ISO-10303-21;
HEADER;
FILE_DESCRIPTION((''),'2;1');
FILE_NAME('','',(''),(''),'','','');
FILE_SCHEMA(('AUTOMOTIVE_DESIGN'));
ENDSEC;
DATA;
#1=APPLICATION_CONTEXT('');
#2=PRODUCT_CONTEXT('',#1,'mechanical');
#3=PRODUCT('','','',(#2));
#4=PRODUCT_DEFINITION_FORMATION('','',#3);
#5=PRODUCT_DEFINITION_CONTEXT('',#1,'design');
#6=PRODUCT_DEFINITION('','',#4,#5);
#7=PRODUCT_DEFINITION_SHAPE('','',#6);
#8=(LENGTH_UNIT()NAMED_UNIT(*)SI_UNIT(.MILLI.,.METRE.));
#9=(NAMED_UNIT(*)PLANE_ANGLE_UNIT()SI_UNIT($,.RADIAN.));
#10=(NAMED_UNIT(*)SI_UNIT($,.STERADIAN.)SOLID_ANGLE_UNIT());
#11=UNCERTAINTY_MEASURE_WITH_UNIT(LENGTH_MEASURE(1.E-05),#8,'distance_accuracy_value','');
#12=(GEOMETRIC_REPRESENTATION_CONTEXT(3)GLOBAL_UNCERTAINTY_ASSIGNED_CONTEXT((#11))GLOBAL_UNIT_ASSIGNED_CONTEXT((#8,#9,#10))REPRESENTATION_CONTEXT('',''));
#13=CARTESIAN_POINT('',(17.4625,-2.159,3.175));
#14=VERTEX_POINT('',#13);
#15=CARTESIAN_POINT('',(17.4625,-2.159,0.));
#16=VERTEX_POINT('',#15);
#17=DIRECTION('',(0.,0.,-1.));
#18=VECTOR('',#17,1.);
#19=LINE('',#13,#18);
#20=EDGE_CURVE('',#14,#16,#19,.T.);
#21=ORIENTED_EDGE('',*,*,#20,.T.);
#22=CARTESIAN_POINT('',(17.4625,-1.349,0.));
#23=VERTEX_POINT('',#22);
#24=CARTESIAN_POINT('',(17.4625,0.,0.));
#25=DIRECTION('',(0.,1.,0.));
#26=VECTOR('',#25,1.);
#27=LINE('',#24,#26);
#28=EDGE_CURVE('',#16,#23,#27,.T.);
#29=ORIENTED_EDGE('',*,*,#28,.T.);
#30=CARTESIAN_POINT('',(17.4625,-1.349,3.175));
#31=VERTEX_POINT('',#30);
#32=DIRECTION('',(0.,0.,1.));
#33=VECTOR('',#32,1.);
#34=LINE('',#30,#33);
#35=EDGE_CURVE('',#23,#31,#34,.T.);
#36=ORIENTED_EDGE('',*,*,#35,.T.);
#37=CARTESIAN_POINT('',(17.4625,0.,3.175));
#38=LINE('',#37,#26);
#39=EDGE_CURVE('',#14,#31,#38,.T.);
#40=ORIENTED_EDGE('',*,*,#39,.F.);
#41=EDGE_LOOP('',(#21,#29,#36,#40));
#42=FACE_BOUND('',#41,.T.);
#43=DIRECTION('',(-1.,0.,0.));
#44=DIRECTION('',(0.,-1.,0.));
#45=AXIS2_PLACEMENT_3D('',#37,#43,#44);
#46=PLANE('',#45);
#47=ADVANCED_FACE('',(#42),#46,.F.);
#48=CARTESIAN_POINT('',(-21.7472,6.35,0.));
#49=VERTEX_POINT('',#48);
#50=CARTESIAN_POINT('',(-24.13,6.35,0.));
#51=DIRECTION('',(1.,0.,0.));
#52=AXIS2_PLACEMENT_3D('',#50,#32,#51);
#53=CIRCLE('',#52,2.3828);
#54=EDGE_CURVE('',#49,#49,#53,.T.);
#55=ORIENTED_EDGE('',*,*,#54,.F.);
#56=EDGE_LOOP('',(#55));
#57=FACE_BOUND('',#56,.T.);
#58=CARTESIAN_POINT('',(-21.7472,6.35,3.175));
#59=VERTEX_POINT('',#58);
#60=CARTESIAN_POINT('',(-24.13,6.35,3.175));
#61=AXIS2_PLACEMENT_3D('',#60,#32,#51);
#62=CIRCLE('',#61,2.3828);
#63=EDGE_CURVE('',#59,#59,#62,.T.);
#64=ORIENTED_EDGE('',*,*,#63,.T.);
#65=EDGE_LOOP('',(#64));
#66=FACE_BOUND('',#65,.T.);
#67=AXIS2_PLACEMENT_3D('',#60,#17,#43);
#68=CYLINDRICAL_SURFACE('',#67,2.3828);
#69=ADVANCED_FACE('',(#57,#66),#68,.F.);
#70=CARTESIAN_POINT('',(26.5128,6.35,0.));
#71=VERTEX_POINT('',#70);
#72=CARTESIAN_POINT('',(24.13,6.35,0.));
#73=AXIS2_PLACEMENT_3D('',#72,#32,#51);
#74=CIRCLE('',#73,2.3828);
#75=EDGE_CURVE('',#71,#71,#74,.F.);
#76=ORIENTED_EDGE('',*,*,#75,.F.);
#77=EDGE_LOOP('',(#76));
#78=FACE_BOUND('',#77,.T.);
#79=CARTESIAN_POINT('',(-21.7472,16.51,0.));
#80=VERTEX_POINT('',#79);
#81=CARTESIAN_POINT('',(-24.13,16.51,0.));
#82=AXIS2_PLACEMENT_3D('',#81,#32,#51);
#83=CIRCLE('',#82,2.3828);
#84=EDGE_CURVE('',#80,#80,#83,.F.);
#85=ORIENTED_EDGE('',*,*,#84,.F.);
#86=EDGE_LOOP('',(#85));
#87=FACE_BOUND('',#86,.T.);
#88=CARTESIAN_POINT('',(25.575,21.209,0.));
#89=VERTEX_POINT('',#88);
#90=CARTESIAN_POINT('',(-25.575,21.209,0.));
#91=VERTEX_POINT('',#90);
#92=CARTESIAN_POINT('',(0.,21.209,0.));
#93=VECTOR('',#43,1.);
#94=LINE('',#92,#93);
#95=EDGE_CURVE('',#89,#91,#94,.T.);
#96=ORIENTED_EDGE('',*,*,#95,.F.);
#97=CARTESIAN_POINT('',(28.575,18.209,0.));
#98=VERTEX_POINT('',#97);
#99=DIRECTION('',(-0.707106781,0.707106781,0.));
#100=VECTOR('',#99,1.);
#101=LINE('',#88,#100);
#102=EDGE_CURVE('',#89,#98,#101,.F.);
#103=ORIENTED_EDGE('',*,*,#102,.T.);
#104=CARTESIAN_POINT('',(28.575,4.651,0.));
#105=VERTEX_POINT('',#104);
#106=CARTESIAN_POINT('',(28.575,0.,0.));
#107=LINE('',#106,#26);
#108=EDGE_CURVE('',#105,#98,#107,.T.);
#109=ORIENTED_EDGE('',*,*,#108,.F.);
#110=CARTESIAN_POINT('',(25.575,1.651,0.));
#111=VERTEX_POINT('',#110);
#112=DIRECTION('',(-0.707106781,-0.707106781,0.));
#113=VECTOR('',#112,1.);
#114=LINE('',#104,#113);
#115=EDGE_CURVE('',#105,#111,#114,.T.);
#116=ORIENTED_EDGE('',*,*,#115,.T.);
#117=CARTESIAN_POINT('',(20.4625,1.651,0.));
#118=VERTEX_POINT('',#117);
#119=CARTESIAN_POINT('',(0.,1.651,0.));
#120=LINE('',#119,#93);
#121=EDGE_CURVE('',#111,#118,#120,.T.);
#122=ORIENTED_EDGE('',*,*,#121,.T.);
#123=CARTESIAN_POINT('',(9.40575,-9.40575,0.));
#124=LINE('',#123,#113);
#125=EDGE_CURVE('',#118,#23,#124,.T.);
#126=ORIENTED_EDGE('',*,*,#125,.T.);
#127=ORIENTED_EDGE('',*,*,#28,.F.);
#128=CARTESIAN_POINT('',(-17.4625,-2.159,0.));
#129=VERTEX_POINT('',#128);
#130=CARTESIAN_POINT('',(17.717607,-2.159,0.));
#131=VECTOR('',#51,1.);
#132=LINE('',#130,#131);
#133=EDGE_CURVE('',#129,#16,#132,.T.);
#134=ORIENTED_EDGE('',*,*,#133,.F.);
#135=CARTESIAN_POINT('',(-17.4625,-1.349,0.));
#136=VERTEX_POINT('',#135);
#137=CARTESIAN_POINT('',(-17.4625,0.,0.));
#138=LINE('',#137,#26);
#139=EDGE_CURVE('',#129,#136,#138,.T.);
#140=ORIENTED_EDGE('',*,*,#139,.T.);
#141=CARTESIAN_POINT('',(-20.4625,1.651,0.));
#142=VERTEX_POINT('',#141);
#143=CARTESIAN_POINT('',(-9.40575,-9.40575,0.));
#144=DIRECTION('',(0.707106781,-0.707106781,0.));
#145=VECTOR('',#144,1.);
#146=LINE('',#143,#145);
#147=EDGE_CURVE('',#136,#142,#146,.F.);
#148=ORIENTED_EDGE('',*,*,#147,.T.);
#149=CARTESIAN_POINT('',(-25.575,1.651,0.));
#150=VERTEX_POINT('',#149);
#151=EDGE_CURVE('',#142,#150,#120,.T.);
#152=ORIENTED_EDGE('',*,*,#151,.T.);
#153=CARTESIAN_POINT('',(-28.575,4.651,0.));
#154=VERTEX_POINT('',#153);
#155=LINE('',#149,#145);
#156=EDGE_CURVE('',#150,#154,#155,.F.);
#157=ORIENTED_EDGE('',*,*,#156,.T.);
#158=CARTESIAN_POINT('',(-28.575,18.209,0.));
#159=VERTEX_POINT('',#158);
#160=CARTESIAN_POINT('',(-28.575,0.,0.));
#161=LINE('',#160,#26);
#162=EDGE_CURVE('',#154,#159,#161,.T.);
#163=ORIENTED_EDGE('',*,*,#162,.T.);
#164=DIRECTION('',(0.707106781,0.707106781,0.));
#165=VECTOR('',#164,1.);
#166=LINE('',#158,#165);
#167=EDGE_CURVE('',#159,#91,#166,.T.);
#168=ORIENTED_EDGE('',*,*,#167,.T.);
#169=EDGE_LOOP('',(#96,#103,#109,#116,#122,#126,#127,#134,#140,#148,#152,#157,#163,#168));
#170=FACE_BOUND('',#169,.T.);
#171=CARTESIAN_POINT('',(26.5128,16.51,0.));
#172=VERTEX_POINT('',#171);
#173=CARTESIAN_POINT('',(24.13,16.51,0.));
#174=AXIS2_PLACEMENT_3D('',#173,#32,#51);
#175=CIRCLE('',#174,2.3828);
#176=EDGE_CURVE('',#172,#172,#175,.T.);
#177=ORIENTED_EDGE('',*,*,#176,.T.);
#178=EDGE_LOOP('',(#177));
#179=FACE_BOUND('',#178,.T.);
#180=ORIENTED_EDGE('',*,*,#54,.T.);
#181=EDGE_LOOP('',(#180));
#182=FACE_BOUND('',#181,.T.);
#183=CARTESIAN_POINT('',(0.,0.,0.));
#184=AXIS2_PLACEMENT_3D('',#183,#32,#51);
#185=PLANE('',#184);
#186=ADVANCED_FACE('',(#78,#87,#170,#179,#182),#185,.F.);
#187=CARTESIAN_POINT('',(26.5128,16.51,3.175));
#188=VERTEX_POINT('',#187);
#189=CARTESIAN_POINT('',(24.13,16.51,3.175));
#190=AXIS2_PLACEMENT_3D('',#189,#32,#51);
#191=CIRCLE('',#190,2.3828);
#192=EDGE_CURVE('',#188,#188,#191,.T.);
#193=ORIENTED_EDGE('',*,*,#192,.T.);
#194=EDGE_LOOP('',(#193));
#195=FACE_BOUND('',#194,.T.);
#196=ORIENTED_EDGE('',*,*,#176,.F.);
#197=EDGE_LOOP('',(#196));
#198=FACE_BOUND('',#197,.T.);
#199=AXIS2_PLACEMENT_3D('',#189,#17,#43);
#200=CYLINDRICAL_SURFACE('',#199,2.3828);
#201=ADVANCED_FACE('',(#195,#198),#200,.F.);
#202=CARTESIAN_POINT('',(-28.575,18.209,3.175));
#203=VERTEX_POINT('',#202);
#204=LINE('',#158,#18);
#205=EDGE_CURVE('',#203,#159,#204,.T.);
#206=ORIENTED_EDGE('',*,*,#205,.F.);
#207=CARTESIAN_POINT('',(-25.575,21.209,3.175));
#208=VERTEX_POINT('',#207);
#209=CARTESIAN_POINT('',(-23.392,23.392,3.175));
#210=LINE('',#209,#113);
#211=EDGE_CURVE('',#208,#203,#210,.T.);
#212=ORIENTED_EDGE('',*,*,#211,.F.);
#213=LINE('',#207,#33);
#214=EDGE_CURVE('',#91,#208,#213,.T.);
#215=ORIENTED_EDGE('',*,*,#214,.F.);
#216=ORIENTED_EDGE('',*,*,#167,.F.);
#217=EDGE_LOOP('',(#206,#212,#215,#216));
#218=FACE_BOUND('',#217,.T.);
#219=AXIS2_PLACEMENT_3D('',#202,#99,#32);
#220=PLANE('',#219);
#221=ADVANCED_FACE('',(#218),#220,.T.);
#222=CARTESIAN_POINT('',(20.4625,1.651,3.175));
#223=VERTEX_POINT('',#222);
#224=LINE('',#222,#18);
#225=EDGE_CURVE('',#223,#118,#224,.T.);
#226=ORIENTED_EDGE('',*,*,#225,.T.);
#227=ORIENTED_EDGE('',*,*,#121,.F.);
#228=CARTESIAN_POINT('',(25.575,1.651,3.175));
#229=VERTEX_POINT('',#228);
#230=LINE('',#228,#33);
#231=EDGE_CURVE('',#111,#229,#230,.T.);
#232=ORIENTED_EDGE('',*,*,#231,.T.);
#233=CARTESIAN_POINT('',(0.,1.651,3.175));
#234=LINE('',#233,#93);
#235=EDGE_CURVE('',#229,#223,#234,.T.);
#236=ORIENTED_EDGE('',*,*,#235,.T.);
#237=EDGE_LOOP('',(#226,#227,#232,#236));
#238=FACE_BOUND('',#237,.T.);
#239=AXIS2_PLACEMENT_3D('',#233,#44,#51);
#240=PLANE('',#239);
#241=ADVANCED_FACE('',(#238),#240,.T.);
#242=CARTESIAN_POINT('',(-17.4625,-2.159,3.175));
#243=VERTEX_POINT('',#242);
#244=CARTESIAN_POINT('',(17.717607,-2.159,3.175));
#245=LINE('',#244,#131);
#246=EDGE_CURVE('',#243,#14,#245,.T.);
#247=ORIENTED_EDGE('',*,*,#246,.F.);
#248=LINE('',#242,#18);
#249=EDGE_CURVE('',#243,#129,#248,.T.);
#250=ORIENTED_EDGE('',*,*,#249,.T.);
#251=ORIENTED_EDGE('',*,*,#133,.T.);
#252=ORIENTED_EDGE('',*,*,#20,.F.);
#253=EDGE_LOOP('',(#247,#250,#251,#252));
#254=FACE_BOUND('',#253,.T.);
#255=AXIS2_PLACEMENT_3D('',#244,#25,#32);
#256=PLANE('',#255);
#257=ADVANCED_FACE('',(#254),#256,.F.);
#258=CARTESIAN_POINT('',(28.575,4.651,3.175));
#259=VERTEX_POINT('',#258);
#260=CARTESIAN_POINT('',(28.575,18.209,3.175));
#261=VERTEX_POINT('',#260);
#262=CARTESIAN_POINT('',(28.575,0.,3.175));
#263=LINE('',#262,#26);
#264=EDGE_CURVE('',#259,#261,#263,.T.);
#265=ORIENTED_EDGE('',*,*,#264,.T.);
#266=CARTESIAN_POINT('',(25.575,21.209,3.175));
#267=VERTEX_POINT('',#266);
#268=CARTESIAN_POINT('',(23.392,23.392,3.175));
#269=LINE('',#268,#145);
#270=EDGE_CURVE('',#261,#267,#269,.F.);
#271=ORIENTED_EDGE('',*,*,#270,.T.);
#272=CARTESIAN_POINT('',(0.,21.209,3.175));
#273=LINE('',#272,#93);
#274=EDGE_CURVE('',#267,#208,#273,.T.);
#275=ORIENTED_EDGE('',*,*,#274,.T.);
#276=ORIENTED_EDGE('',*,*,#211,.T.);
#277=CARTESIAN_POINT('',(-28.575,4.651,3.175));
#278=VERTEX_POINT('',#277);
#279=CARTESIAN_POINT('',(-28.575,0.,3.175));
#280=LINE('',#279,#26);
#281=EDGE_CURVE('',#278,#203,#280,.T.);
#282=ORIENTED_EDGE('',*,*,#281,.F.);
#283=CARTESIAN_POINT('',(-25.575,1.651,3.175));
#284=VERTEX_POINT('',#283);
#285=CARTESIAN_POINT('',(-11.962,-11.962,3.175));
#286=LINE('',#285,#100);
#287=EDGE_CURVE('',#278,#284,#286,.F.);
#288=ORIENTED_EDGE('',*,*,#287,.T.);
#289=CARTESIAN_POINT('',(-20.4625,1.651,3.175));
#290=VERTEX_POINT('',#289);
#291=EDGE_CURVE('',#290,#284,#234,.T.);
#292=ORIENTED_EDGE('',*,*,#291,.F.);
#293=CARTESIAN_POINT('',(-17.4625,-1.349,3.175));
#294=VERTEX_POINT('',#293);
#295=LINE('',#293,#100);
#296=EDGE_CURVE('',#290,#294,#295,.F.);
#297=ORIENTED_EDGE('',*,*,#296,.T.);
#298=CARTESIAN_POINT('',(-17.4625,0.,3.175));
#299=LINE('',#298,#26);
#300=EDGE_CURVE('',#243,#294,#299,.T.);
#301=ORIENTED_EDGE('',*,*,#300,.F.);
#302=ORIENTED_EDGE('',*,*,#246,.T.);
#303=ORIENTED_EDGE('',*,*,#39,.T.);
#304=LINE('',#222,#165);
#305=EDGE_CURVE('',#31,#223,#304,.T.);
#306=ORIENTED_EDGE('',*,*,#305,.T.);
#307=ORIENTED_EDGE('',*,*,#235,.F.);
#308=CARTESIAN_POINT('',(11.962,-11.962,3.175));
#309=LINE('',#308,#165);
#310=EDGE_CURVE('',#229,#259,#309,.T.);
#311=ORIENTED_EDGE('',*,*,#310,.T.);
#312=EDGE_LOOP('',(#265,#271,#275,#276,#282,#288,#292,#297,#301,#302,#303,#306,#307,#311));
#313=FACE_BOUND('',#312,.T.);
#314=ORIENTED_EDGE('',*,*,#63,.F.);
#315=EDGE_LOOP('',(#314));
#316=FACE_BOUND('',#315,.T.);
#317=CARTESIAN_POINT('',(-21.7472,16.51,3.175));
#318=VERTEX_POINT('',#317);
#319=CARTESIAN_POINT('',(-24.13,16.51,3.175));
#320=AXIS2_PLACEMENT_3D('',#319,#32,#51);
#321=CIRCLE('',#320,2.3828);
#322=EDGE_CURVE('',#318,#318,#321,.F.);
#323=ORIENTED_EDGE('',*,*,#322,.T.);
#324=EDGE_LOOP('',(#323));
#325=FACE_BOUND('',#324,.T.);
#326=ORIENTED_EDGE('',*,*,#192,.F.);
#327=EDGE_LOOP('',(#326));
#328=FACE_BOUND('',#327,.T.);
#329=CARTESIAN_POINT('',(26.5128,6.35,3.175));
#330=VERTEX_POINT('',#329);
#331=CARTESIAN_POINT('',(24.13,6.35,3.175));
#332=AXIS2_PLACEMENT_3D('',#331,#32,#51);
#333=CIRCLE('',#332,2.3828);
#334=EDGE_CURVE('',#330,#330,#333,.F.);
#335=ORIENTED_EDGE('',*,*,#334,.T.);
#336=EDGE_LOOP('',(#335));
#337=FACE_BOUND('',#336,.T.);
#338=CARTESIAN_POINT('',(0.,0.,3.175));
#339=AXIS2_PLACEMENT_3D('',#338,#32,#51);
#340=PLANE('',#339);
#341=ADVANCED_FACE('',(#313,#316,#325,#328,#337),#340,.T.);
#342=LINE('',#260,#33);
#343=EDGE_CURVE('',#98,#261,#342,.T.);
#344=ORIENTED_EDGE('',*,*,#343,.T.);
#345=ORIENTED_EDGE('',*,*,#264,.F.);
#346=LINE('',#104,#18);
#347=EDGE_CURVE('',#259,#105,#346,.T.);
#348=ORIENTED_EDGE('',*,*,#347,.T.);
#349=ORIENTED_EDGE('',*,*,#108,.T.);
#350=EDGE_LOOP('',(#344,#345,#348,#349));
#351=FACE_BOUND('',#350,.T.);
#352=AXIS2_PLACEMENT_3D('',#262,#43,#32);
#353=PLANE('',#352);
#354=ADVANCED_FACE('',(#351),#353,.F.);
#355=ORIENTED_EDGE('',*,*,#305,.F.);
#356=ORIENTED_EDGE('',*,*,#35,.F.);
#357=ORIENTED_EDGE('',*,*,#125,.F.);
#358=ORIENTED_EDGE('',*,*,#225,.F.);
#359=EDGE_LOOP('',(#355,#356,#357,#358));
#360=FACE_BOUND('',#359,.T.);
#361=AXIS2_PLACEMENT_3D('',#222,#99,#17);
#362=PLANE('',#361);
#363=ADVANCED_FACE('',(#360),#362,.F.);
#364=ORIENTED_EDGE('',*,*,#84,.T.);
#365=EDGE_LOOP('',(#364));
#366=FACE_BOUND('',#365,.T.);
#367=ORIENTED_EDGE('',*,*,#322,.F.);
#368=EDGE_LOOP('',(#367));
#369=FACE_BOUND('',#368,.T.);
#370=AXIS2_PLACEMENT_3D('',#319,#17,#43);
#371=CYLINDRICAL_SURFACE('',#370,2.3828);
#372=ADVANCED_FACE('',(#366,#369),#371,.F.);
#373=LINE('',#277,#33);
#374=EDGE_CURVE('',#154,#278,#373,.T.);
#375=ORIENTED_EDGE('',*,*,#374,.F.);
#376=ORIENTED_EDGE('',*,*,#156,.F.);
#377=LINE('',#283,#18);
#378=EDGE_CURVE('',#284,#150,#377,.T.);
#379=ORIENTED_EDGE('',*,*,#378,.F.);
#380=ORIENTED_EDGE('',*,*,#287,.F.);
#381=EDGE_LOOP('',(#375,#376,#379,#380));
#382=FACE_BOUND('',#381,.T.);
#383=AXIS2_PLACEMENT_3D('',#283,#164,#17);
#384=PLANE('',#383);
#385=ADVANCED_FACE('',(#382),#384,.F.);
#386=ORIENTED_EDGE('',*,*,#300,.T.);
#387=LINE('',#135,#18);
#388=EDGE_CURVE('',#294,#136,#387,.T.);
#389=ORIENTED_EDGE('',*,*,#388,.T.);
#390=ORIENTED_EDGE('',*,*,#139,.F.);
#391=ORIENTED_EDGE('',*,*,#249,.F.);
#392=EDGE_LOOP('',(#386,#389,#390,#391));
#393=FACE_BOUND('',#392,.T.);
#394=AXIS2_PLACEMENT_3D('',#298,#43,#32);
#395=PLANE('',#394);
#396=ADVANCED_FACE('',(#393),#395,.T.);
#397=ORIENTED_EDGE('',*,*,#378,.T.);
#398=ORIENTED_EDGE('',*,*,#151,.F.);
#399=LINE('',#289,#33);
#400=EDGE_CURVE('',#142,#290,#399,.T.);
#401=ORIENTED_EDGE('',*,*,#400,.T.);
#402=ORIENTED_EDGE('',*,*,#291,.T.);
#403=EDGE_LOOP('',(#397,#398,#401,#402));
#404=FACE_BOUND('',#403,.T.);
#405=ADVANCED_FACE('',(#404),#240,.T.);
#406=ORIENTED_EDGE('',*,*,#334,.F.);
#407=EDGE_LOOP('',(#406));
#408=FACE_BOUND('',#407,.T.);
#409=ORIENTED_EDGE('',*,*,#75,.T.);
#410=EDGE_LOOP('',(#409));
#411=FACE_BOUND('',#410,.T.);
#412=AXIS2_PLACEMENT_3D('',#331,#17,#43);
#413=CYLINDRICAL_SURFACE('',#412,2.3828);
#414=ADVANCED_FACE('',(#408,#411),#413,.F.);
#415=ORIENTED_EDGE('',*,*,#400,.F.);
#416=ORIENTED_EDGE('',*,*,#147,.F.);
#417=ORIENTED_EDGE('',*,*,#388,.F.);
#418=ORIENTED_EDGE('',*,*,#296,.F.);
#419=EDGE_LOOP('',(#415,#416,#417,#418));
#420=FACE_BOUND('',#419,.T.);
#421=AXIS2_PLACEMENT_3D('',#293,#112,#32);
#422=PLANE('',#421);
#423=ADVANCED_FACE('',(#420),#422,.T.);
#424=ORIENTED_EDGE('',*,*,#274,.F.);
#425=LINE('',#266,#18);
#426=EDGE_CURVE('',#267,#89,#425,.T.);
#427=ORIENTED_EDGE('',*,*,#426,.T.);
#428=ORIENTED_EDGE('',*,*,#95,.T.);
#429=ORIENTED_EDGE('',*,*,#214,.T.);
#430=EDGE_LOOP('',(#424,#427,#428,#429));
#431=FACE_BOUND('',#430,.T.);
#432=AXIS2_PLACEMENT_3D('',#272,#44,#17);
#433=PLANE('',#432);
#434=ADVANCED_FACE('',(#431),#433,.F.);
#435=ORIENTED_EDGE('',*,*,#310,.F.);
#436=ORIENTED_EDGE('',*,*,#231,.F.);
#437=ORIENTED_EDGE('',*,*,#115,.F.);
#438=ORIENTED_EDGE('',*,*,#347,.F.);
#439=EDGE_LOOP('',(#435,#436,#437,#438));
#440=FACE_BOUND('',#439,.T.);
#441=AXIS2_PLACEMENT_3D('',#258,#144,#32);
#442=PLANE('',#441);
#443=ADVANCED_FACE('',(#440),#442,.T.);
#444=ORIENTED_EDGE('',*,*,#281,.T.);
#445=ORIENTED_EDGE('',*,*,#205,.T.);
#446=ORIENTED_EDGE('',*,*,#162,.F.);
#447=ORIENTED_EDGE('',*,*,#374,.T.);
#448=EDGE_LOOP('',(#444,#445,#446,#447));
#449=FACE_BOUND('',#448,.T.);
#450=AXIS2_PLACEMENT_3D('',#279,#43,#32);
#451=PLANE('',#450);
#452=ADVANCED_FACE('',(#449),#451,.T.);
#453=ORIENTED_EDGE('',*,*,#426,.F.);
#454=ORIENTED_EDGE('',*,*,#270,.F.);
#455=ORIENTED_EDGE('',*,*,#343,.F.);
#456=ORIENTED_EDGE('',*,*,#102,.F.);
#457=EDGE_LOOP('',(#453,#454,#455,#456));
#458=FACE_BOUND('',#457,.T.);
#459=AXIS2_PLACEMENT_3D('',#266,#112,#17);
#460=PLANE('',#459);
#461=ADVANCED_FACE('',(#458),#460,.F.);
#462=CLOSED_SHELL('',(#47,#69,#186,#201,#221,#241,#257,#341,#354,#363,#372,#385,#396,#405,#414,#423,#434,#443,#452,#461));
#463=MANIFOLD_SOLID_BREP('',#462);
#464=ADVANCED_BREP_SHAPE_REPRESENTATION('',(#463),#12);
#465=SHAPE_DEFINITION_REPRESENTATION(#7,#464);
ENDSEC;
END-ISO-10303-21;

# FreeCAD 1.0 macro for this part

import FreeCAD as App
import Part
import Sketcher
Q = App.Units.Quantity


def edges_at(feature, points):
    """Names of the edges that pass closest to the given points."""
    edges = feature.Shape.Edges
    near = lambda p: min(range(len(edges)), key=lambda i: edges[i].distToShape(Part.Vertex(*p))[0])
    return sorted({f"Edge{near(p) + 1}" for p in points})


def add_polygon(sketch, points):
    """Adds a closed chain of lines whose ends are joined by coincident constraints."""
    first, n = sketch.GeometryCount, len(points)
    for a, b in zip(points, points[1:] + points[:1]):
        sketch.addGeometry(Part.LineSegment(App.Vector(*a, 0), App.Vector(*b, 0)), False)
    for i in range(n):
        sketch.addConstraint(Sketcher.Constraint("Coincident", first + i, 2, first + (i + 1) % n, 1))

doc = App.newDocument("Part")
body = doc.addObject("PartDesign::Body", "Body")

# Sketch on XY plane
sketch1 = body.newObject("Sketcher::SketchObject", "Sketch")
sketch1.AttachmentSupport = (doc.getObject("XY_Plane"), [""])
sketch1.MapMode = "FlatFace"
add_polygon(sketch1, [(-17.5, -21.2), (17.5, -21.2), (17.5, 1.7), (28.6, 1.7), (28.6, 21.2), (-28.6, 21.2), (-28.6, 1.7), (-17.5, 1.7)])  # lines 0-7
sketch1.addGeometry(Part.Circle(App.Vector(9.5, -10.5, 0), App.Vector(0, 0, 1), 3.5), False)  # 8
sketch1.addGeometry(Part.Circle(App.Vector(-9.5, -10.5, 0), App.Vector(0, 0, 1), 3.5), False)  # 9
sketch1.addGeometry(Part.Circle(App.Vector(24.1, 6.3, 0), App.Vector(0, 0, 1), 2.4), False)  # 10
sketch1.addGeometry(Part.Circle(App.Vector(24.1, 16.5, 0), App.Vector(0, 0, 1), 2.4), False)  # 11
sketch1.addGeometry(Part.Circle(App.Vector(-24.1, 6.3, 0), App.Vector(0, 0, 1), 2.4), False)  # 12
sketch1.addGeometry(Part.Circle(App.Vector(-24.1, 16.5, 0), App.Vector(0, 0, 1), 2.4), False)  # 13
sketch1.addConstraint(Sketcher.Constraint("Horizontal", 0))
sketch1.addConstraint(Sketcher.Constraint("Vertical", 1))
sketch1.addConstraint(Sketcher.Constraint("Horizontal", 2))
sketch1.addConstraint(Sketcher.Constraint("Vertical", 3))
sketch1.addConstraint(Sketcher.Constraint("Horizontal", 4))
sketch1.addConstraint(Sketcher.Constraint("Vertical", 5))
sketch1.addConstraint(Sketcher.Constraint("Horizontal", 6))
sketch1.addConstraint(Sketcher.Constraint("Vertical", 7))
sketch1.addConstraint(Sketcher.Constraint("Equal", 8, 9))
sketch1.addConstraint(Sketcher.Constraint("Equal", 10, 11))
sketch1.addConstraint(Sketcher.Constraint("Equal", 11, 12))
sketch1.addConstraint(Sketcher.Constraint("Equal", 12, 13))
sketch1.addConstraint(Sketcher.Constraint("Symmetric", 8, 3, 9, 3, -2))
sketch1.addConstraint(Sketcher.Constraint("Symmetric", 10, 3, 12, 3, -2))
sketch1.addConstraint(Sketcher.Constraint("Symmetric", 11, 3, 13, 3, -2))
sketch1.addConstraint(Sketcher.Constraint("Symmetric", 2, 2, 5, 2, -2))
sketch1.addConstraint(Sketcher.Constraint("Vertical", 10, 3, 11, 3))
sketch1.addConstraint(Sketcher.Constraint("Equal", 2, 6))
sketch1.addConstraint(Sketcher.Constraint("DistanceY", 1, 1, 1, 2, Q("0.9 in")))
sketch1.addConstraint(Sketcher.Constraint("DistanceX", 4, 2, 4, 1, Q("2.25 in")))
sketch1.addConstraint(Sketcher.Constraint("DistanceY", 3, 1, 3, 2, Q("0.77 in")))
sketch1.addConstraint(Sketcher.Constraint("DistanceY", 10, 3, 11, 3, Q("0.4 in")))
sketch1.addConstraint(Sketcher.Constraint("DistanceX", 12, 3, 10, 3, Q("1.9 in")))
sketch1.addConstraint(Sketcher.Constraint("DistanceX", 4, 2, 8, 3, Q("1.5 in")))
sketch1.addConstraint(Sketcher.Constraint("Diameter", 8, 6.95))
sketch1.addConstraint(Sketcher.Constraint("Diameter", 10, 4.7656))
sketch1.addConstraint(Sketcher.Constraint("DistanceX", 0, 1, 0, 2, Q("1.375 in")))
sketch1.addConstraint(Sketcher.Constraint("DistanceY", -1, 1, 10, 3, Q("0.25 in")))
sketch1.addConstraint(Sketcher.Constraint("DistanceY", 0, 2, 8, 3, Q("0.42 in")))
sketch1.addConstraint(Sketcher.Constraint("DistanceY", 8, 3, -1, 1, Q("0.415 in")))
pad1 = body.newObject("PartDesign::Pad", "Pad")
pad1.Profile = sketch1
pad1.Length = Q("0.125 in")
doc.recompute()

chamfer = body.newObject("PartDesign::Chamfer", "Chamfer")
chamfer.Base = (pad1, edges_at(pad1, [
    (-28.575, 1.651, 1.587),
    (-28.575, 21.209, 1.587),
    (28.575, 21.209, 1.587),
    (28.575, 1.651, 1.587),
]))
chamfer.Size = 3
doc.recompute()

chamfer2 = body.newObject("PartDesign::Chamfer", "Chamfer001")
chamfer2.Base = (chamfer, edges_at(chamfer, [
    (17.462, 1.651, 1.587),
    (17.462, -21.209, 1.587),
    (-17.462, -21.209, 1.587),
    (-17.462, 1.651, 1.587),
]))
chamfer2.Size = 3

# Sketch on XY plane
sketch2 = body.newObject("Sketcher::SketchObject", "Sketch001")
sketch2.AttachmentSupport = (doc.getObject("XY_Plane"), [""])
sketch2.MapMode = "FlatFace"
add_polygon(sketch2, [(18, -2), (18, -21), (-18, -21), (-18, -2)])  # lines 0-3
sketch2.addConstraint(Sketcher.Constraint("Vertical", 0))
sketch2.addConstraint(Sketcher.Constraint("Horizontal", 1))
sketch2.addConstraint(Sketcher.Constraint("Vertical", 2))
sketch2.addConstraint(Sketcher.Constraint("Horizontal", 3))
sketch2.addConstraint(Sketcher.Constraint("DistanceY", 0, 2, 0, 1, Q("0.75 in")))
sketch2.addConstraint(Sketcher.Constraint("DistanceY", 0, 2, -1, 1, Q("0.835 in")))
sketch2.addConstraint(Sketcher.Constraint("DistanceX", 1, 2, 1, 1, 36.093297))
sketch2.addConstraint(Sketcher.Constraint("DistanceX", 1, 2, -1, 1, 18.37569))
pocket1 = body.newObject("PartDesign::Pocket", "Pocket")
pocket1.Profile = sketch2
pocket1.Type = "ThroughAll"
pocket1.Reversed = True

doc.recompute()
